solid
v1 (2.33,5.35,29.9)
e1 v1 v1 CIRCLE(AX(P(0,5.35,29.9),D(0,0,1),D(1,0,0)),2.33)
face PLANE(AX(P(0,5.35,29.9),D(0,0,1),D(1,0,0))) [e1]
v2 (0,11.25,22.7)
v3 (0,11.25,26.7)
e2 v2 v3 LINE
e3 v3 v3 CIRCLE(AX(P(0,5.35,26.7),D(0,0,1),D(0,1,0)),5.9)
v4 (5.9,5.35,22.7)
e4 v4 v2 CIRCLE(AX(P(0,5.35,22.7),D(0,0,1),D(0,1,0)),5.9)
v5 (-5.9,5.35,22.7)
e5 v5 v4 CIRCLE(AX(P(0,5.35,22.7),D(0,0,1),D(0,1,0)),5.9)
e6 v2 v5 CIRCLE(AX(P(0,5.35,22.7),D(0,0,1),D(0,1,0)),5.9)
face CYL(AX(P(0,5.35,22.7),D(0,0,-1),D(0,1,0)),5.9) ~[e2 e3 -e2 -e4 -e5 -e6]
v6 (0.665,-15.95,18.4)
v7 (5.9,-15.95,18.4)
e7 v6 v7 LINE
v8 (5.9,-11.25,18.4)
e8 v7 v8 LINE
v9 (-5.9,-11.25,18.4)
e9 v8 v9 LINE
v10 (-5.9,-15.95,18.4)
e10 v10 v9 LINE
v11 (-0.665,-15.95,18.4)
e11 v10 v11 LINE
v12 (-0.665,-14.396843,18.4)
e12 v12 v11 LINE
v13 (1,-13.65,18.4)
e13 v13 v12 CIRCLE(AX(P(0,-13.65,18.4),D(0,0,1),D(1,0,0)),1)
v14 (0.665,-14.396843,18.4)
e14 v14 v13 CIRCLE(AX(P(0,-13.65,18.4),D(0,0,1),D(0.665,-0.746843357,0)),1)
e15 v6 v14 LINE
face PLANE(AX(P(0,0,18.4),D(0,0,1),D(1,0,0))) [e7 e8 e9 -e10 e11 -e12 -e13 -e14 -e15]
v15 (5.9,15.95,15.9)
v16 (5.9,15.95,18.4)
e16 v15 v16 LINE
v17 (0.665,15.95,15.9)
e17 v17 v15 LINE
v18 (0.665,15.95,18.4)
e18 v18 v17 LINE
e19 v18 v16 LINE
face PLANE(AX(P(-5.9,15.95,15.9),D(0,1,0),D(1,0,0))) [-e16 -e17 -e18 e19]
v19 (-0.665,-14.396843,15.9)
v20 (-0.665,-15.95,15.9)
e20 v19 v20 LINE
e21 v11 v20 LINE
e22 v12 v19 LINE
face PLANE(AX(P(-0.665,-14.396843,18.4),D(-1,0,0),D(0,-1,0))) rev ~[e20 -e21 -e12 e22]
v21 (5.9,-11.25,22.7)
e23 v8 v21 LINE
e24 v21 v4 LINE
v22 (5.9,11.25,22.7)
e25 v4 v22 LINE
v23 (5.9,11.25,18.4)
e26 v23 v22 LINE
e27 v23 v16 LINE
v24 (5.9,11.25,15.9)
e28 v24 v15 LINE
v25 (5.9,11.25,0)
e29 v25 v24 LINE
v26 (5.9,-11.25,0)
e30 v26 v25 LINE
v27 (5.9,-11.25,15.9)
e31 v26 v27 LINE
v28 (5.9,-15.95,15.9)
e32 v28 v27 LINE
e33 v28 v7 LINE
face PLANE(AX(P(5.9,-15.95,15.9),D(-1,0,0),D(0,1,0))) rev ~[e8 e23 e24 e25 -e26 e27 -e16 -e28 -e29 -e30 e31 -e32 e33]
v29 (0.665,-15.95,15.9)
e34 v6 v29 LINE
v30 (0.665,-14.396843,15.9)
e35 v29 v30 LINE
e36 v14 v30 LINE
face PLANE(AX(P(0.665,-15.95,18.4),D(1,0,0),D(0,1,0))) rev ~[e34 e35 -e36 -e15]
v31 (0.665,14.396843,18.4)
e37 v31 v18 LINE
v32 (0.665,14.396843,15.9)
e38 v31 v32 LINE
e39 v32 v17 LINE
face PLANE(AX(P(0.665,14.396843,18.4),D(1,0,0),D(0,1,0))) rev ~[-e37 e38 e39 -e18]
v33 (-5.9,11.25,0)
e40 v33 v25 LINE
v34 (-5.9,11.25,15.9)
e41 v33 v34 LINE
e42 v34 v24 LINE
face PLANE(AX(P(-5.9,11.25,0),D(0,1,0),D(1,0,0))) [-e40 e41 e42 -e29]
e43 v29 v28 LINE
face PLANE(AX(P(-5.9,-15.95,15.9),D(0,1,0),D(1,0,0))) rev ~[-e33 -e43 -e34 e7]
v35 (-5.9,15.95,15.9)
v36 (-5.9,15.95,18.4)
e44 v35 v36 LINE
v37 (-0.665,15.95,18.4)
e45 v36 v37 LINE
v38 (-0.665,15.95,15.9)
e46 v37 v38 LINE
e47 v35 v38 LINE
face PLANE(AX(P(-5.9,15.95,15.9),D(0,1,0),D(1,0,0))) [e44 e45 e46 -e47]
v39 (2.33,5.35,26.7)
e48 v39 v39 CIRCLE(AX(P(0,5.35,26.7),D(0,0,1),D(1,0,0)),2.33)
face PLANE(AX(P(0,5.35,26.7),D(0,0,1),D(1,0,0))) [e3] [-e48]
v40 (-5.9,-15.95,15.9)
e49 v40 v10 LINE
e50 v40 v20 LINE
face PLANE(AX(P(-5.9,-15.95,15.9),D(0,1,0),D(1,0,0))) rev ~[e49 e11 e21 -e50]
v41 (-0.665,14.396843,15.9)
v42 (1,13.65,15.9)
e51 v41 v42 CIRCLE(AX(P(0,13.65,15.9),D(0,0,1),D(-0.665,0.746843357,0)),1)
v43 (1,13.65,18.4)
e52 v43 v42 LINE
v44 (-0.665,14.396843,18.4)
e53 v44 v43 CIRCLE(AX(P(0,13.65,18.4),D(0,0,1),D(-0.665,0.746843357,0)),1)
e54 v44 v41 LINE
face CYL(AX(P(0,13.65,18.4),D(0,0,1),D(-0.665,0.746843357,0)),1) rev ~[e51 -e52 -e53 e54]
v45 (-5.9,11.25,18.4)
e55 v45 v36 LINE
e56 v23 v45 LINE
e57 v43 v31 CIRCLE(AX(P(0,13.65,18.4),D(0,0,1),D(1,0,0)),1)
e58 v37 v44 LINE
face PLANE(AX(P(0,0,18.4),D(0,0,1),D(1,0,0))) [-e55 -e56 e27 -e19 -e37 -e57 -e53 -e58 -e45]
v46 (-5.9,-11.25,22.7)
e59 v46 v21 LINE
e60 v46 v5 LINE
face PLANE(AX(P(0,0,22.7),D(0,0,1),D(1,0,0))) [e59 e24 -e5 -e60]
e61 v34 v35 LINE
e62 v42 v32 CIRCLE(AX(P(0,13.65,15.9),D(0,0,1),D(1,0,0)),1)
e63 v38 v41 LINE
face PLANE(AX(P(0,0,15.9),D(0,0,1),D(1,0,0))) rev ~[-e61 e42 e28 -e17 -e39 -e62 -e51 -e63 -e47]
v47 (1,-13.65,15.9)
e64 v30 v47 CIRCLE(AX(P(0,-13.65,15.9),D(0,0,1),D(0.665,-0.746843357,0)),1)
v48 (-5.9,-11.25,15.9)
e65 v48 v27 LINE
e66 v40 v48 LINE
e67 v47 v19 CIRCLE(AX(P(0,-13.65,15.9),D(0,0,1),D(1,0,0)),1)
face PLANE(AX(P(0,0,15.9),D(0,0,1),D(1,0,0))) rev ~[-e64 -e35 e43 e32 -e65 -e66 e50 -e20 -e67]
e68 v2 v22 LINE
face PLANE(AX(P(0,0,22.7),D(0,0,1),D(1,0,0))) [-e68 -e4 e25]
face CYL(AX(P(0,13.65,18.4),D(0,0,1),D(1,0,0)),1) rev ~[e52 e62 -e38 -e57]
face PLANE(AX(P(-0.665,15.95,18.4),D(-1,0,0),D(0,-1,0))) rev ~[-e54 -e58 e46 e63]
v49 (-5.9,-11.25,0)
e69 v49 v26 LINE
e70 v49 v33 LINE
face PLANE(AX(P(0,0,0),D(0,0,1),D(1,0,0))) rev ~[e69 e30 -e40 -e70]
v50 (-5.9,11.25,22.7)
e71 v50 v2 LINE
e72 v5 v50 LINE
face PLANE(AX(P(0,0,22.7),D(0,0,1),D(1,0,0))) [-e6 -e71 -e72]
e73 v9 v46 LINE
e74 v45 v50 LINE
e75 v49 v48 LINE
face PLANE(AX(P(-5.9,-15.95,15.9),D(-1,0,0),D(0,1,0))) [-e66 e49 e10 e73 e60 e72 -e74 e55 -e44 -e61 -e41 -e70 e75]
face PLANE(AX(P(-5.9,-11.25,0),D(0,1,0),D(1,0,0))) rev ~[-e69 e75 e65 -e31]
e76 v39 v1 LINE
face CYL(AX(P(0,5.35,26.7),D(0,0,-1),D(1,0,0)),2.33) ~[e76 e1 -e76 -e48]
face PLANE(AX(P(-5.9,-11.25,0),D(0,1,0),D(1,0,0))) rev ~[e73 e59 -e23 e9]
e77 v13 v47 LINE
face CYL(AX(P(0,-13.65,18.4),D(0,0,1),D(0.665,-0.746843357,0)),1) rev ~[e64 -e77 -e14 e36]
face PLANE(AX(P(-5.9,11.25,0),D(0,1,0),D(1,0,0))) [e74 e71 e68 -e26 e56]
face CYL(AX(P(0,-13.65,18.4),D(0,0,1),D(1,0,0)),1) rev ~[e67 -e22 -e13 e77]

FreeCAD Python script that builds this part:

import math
import FreeCAD as App
import Part
import Sketcher
Q = App.Units.Quantity


def add_polygon(sketch, points):
    """Adds a closed chain of lines whose ends are joined by coincident constraints."""
    first, n = sketch.GeometryCount, len(points)
    for a, b in zip(points, points[1:] + points[:1]):
        sketch.addGeometry(Part.LineSegment(App.Vector(*a, 0), App.Vector(*b, 0)), False)
    for i in range(n):
        sketch.addConstraint(Sketcher.Constraint("Coincident", first + i, 2, first + (i + 1) % n, 1))

doc = App.newDocument("Part")
body = doc.addObject("PartDesign::Body", "Body")

# Sketch on XY plane
sketch1 = doc.addObject("Sketcher::SketchObject", "Sketch")
body.addObject(sketch1)
sketch1.AttachmentSupport = (doc.XY_Plane, [""])
sketch1.MapMode = "FlatFace"
add_polygon(sketch1, [(-6, 11), (-6, -11), (6, -11), (6, 11)])  # lines 0-3
sketch1.addConstraint([
    Sketcher.Constraint("Vertical", 0),
    Sketcher.Constraint("Horizontal", 1),
    Sketcher.Constraint("Vertical", 2),
    Sketcher.Constraint("Horizontal", 3),
    Sketcher.Constraint("Symmetric", 0, 2, 2, 2, -1, 1),
    Sketcher.Constraint("DistanceX", 1, 1, 1, 2, Q("11.8 mm")),
    Sketcher.Constraint("DistanceY", 0, 2, 0, 1, Q("22.5 mm")),
])
pad1 = doc.addObject("PartDesign::Pad", "Pad")
body.addObject(pad1)
pad1.Profile = sketch1
pad1.Length = 15.9

# Sketch on XY plane
sketch2 = doc.addObject("Sketcher::SketchObject", "Sketch001")
body.addObject(sketch2)
sketch2.AttachmentSupport = (doc.XY_Plane, [""])
sketch2.MapMode = "FlatFace"
sketch2.AttachmentOffset = App.Placement(App.Vector(0, 0, 15.9), App.Rotation())
add_polygon(sketch2, [(-6, 16), (-6, -16), (6, -16), (6, 16)])  # lines 0-3
sketch2.addConstraint([
    Sketcher.Constraint("Vertical", 0),
    Sketcher.Constraint("Horizontal", 1),
    Sketcher.Constraint("Vertical", 2),
    Sketcher.Constraint("Horizontal", 3),
    Sketcher.Constraint("Symmetric", 0, 2, 2, 2, -1, 1),
    Sketcher.Constraint("DistanceX", 1, 1, 1, 2, Q("11.8 mm")),
    Sketcher.Constraint("DistanceY", 0, 2, 0, 1, Q("31.9 mm")),
])
pad2 = doc.addObject("PartDesign::Pad", "Pad001")
body.addObject(pad2)
pad2.Profile = sketch2
pad2.Length = 2.5

# Sketch on XY plane
sketch3 = doc.addObject("Sketcher::SketchObject", "Sketch002")
body.addObject(sketch3)
sketch3.AttachmentSupport = (doc.XY_Plane, [""])
sketch3.MapMode = "FlatFace"
sketch3.AttachmentOffset = App.Placement(App.Vector(0, 0, 18.4), App.Rotation())
sketch3.addGeometry([
    Part.ArcOfCircle(Part.Circle(App.Vector(0, 13.7, 0), App.Vector(0, 0, 1), 1), math.radians(132), math.radians(360)),  # 0
    Part.ArcOfCircle(Part.Circle(App.Vector(0, 13.7, 0), App.Vector(0, 0, 1), 1), math.radians(0), math.radians(48)),  # 1
    Part.LineSegment(App.Vector(0.7, 14.4, 0), App.Vector(0.7, 15.9, 0)),  # 2
    Part.LineSegment(App.Vector(0.7, 15.9, 0), App.Vector(-0.7, 15.9, 0)),  # 3
    Part.LineSegment(App.Vector(-0.7, 15.9, 0), App.Vector(-0.7, 14.4, 0)),  # 4
    Part.ArcOfCircle(Part.Circle(App.Vector(0, -13.7, 0), App.Vector(0, 0, 1), 1), math.radians(-48), math.radians(0)),  # 5
    Part.ArcOfCircle(Part.Circle(App.Vector(0, -13.7, 0), App.Vector(0, 0, 1), 1), math.radians(0), math.radians(228)),  # 6
    Part.LineSegment(App.Vector(-0.7, -14.4, 0), App.Vector(-0.7, -15.9, 0)),  # 7
    Part.LineSegment(App.Vector(-0.7, -15.9, 0), App.Vector(0.7, -15.9, 0)),  # 8
    Part.LineSegment(App.Vector(0.7, -15.9, 0), App.Vector(0.7, -14.4, 0)),  # 9
], False)
sketch3.addConstraint([
    Sketcher.Constraint("Tangent", 0, 2, 1, 1),
    Sketcher.Constraint("Coincident", 1, 2, 2, 1),
    Sketcher.Constraint("Coincident", 2, 2, 3, 1),
    Sketcher.Constraint("Coincident", 3, 2, 4, 1),
    Sketcher.Constraint("Coincident", 4, 2, 0, 1),
    Sketcher.Constraint("Tangent", 5, 2, 6, 1),
    Sketcher.Constraint("Coincident", 6, 2, 7, 1),
    Sketcher.Constraint("Coincident", 7, 2, 8, 1),
    Sketcher.Constraint("Coincident", 8, 2, 9, 1),
    Sketcher.Constraint("Coincident", 9, 2, 5, 1),
    Sketcher.Constraint("Vertical", 2),
    Sketcher.Constraint("Horizontal", 3),
    Sketcher.Constraint("Vertical", 4),
    Sketcher.Constraint("Vertical", 7),
    Sketcher.Constraint("Horizontal", 8),
    Sketcher.Constraint("Vertical", 9),
    Sketcher.Constraint("Equal", 0, 1),
    Sketcher.Constraint("Equal", 1, 5),
    Sketcher.Constraint("Equal", 5, 6),
    Sketcher.Constraint("Symmetric", 0, 3, 5, 3, -1, 1),
    Sketcher.Constraint("Symmetric", 2, 2, 7, 2, -1, 1),
    Sketcher.Constraint("Symmetric", 1, 2, 4, 2, -2),
    Sketcher.Constraint("Horizontal", 1, 3, 0, 2),
    Sketcher.Constraint("Horizontal", 6, 3, 5, 2),
    Sketcher.Constraint("Horizontal", 6, 2, 9, 2),
    Sketcher.Constraint("Radius", 0, Q("1 mm")),
    Sketcher.Constraint("DistanceX", 3, 2, 3, 1, Q("1.33 mm")),
    Sketcher.Constraint("DistanceY", 5, 3, 0, 3, Q("27.3 mm")),
    Sketcher.Constraint("DistanceY", 0, 2, 2, 2, Q("2.3 mm")),
])
pocket1 = doc.addObject("PartDesign::Pocket", "Pocket")
body.addObject(pocket1)
pocket1.Profile = sketch3
pocket1.Length = 2.5

# Sketch on XY plane
sketch4 = doc.addObject("Sketcher::SketchObject", "Sketch003")
body.addObject(sketch4)
sketch4.AttachmentSupport = (doc.XY_Plane, [""])
sketch4.MapMode = "FlatFace"
add_polygon(sketch4, [(-6, 11), (-6, -11), (6, -11), (6, 11)])  # lines 0-3
sketch4.addConstraint([
    Sketcher.Constraint("Vertical", 0),
    Sketcher.Constraint("Horizontal", 1),
    Sketcher.Constraint("Vertical", 2),
    Sketcher.Constraint("Horizontal", 3),
    Sketcher.Constraint("Symmetric", 0, 2, 2, 2, -1, 1),
    Sketcher.Constraint("DistanceX", 1, 1, 1, 2, Q("11.8 mm")),
    Sketcher.Constraint("DistanceY", 0, 2, 0, 1, Q("22.5 mm")),
])
pad3 = doc.addObject("PartDesign::Pad", "Pad002")
body.addObject(pad3)
pad3.Profile = sketch4
pad3.Length = 22.7

# Sketch on XY plane
sketch5 = doc.addObject("Sketcher::SketchObject", "Sketch004")
body.addObject(sketch5)
sketch5.AttachmentSupport = (doc.XY_Plane, [""])
sketch5.MapMode = "FlatFace"
sketch5.AttachmentOffset = App.Placement(App.Vector(0, 0, 22.7), App.Rotation())
sketch5.addGeometry(Part.Circle(App.Vector(0, 5, 0), App.Vector(0, 0, 1), 6), False)
sketch5.addConstraint([
    Sketcher.Constraint("PointOnObject", 0, 3, -2),
    Sketcher.Constraint("Diameter", 0, Q("11.8 mm")),
    Sketcher.Constraint("DistanceY", -1, 1, 0, 3, Q("5.35 mm")),
])
pad4 = doc.addObject("PartDesign::Pad", "Pad003")
body.addObject(pad4)
pad4.Profile = sketch5
pad4.Length = 4

# Sketch on XY plane
sketch6 = doc.addObject("Sketcher::SketchObject", "Sketch005")
body.addObject(sketch6)
sketch6.AttachmentSupport = (doc.XY_Plane, [""])
sketch6.MapMode = "FlatFace"
sketch6.AttachmentOffset = App.Placement(App.Vector(0, 0, 26.7), App.Rotation())
sketch6.addGeometry(Part.Circle(App.Vector(0, 5.3, 0), App.Vector(0, 0, 1), 2.3), False)
sketch6.addConstraint([
    Sketcher.Constraint("PointOnObject", 0, 3, -2),
    Sketcher.Constraint("Diameter", 0, Q("4.66 mm")),
    Sketcher.Constraint("DistanceY", -1, 1, 0, 3, Q("5.35 mm")),
])
pad5 = doc.addObject("PartDesign::Pad", "Pad004")
body.addObject(pad5)
pad5.Profile = sketch6
pad5.Length = 3.2

doc.recompute()
